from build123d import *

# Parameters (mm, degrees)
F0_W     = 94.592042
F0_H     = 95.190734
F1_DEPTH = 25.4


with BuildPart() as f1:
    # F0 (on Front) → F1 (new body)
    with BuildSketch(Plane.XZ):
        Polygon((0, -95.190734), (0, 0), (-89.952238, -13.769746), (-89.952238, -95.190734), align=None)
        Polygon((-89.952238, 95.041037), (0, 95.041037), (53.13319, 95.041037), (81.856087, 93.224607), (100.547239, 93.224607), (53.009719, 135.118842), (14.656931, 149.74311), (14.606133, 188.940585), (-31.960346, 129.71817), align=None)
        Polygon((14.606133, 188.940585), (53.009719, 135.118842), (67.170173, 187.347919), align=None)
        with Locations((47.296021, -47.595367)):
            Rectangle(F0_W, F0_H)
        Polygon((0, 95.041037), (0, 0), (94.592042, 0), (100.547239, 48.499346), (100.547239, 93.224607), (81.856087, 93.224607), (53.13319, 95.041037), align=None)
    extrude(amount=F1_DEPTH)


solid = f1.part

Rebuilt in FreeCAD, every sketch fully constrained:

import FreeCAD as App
import Part
import Sketcher
Q = App.Units.Quantity

doc = App.newDocument("Part")
body = doc.addObject("PartDesign::Body", "Body")
body.AllowCompound = True

# Sketch on XZ plane
sketch1 = body.newObject("Sketcher::SketchObject", "Sketch")
sketch1.AttachmentSupport = (doc.getObject("XZ_Plane"), [""])
sketch1.MapMode = "FlatFace"
sketch1.addGeometry([
    Part.LineSegment(App.Vector(0, 0, 0), App.Vector(-90, -14, 0)),  # 0
    Part.LineSegment(App.Vector(-90, -14, 0), App.Vector(-90, -95, 0)),  # 1
    Part.LineSegment(App.Vector(-90, -95, 0), App.Vector(95, -95, 0)),  # 2
    Part.LineSegment(App.Vector(95, -95, 0), App.Vector(95, 0, 0)),  # 3
    Part.LineSegment(App.Vector(95, 0, 0), App.Vector(101, 48, 0)),  # 4
    Part.LineSegment(App.Vector(101, 48, 0), App.Vector(101, 93, 0)),  # 5
    Part.LineSegment(App.Vector(101, 93, 0), App.Vector(53, 135, 0)),  # 6
    Part.LineSegment(App.Vector(53, 135, 0), App.Vector(15, 150, 0)),  # 7
    Part.LineSegment(App.Vector(15, 150, 0), App.Vector(15, 189, 0)),  # 8
    Part.LineSegment(App.Vector(15, 189, 0), App.Vector(-32, 130, 0)),  # 9
    Part.LineSegment(App.Vector(-32, 130, 0), App.Vector(-90, 95, 0)),  # 10
    Part.LineSegment(App.Vector(-90, 95, 0), App.Vector(0, 95, 0)),  # 11
    Part.LineSegment(App.Vector(0, 95, 0), App.Vector(0, 0, 0)),  # 12
    Part.LineSegment(App.Vector(15, 189, 0), App.Vector(53, 135, 0)),  # 13
    Part.LineSegment(App.Vector(53, 135, 0), App.Vector(67, 187, 0)),  # 14
    Part.LineSegment(App.Vector(67, 187, 0), App.Vector(15, 189, 0)),  # 15
], False)
sketch1.addConstraint([
    Sketcher.Constraint("Coincident", 0, 2, 1, 1),
    Sketcher.Constraint("Coincident", 1, 2, 2, 1),
    Sketcher.Constraint("Coincident", 2, 2, 3, 1),
    Sketcher.Constraint("Coincident", 3, 2, 4, 1),
    Sketcher.Constraint("Coincident", 4, 2, 5, 1),
    Sketcher.Constraint("Coincident", 5, 2, 6, 1),
    Sketcher.Constraint("Coincident", 6, 2, 7, 1),
    Sketcher.Constraint("Coincident", 7, 2, 8, 1),
    Sketcher.Constraint("Coincident", 8, 2, 9, 1),
    Sketcher.Constraint("Coincident", 9, 2, 10, 1),
    Sketcher.Constraint("Coincident", 10, 2, 11, 1),
    Sketcher.Constraint("Coincident", 11, 2, 12, 1),
    Sketcher.Constraint("Coincident", 12, 2, 0, 1),
    Sketcher.Constraint("Coincident", 13, 2, 14, 1),
    Sketcher.Constraint("Coincident", 14, 2, 15, 1),
    Sketcher.Constraint("Coincident", 15, 2, 13, 1),
    Sketcher.Constraint("Vertical", 1),
    Sketcher.Constraint("Horizontal", 2),
    Sketcher.Constraint("Vertical", 3),
    Sketcher.Constraint("Vertical", 5),
    Sketcher.Constraint("Horizontal", 11),
    Sketcher.Constraint("Vertical", 12),
    Sketcher.Constraint("Coincident", 12, 2, -1, 1),
    Sketcher.Constraint("Coincident", 13, 2, 6, 2),
    Sketcher.Constraint("Coincident", 15, 2, 8, 2),
    Sketcher.Constraint("PointOnObject", 3, 2, -1),
    Sketcher.Constraint("Vertical", 1, 2, 10, 2),
    Sketcher.Constraint("DistanceX", 8, 2, 7, 2, Q("0.0019999 in")),
    Sketcher.Constraint("Distance", 15, Q("2.0704001 in")),
    Sketcher.Constraint("DistanceX", 2, 1, 2, 2, Q("184.54428 mm")),
    Sketcher.Constraint("DistanceY", 1, 2, 1, 1, Q("81.420988 mm")),
    Sketcher.Constraint("DistanceY", 5, 1, 5, 2, Q("44.725261 mm")),
    Sketcher.Constraint("Distance", 0, Q("91.000061 mm")),
    Sketcher.Constraint("Distance", 9, Q("75.33745 mm")),
    Sketcher.Constraint("Distance", 10, Q("67.568951 mm")),
    Sketcher.Constraint("DistanceX", 11, 1, 11, 2, Q("89.952238 mm")),
    Sketcher.Constraint("DistanceY", 12, 2, 12, 1, Q("95.041037 mm")),
    Sketcher.Constraint("DistanceX", -1, 1, 4, 2, Q("100.547239 mm")),
    Sketcher.Constraint("DistanceX", -1, 1, 6, 2, Q("53.009719 mm")),
    Sketcher.Constraint("DistanceY", -1, 1, 6, 2, Q("135.118842 mm")),
    Sketcher.Constraint("DistanceX", -1, 1, 7, 2, Q("14.656931 mm")),
    Sketcher.Constraint("DistanceY", -1, 1, 7, 2, Q("149.74311 mm")),
    Sketcher.Constraint("DistanceY", -1, 1, 9, 2, Q("129.71817 mm")),
    Sketcher.Constraint("DistanceY", -1, 1, 14, 2, Q("187.347919 mm")),
    Sketcher.Constraint("DistanceY", 2, 2, 4, 2, Q("143.69008 mm")),
])
pad1 = body.newObject("PartDesign::Pad", "Pad")
pad1.Profile = sketch1
pad1.Length = Q("1 in")

doc.recompute()
